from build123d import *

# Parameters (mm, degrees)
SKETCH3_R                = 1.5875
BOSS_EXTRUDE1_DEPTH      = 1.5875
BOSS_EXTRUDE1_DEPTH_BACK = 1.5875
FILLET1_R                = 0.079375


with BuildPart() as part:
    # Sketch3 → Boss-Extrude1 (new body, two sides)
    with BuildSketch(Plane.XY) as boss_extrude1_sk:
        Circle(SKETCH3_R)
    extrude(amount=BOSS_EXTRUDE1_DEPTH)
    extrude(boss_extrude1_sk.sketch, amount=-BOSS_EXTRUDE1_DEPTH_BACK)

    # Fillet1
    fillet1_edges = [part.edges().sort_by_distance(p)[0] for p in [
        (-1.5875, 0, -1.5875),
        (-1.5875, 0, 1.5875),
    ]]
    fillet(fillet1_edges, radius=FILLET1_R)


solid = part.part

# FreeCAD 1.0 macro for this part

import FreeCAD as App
import Part
import Sketcher
Q = App.Units.Quantity


def edges_at(feature, points):
    """Names of the edges that pass closest to the given points."""
    edges = feature.Shape.Edges
    near = lambda p: min(range(len(edges)), key=lambda i: edges[i].distToShape(Part.Vertex(*p))[0])
    return sorted({f"Edge{near(p) + 1}" for p in points})

doc = App.newDocument("Part")
body = doc.addObject("PartDesign::Body", "Body")

sketch1 = doc.addObject("Sketcher::SketchObject", "Sketch")
body.addObject(sketch1)
sketch1.AttachmentSupport = (doc.XY_Plane, [""])
sketch1.MapMode = "FlatFace"
sketch1.addGeometry(Part.Circle(App.Vector(0, 0, 0), App.Vector(0, 0, 1), 1.6), False)
sketch1.addConstraint([
    Sketcher.Constraint("Coincident", 0, 3, -1, 1),
    Sketcher.Constraint("Diameter", 0, Q("0.125 in")),
])
pad1 = doc.addObject("PartDesign::Pad", "Pad")
body.addObject(pad1)
pad1.Profile = sketch1
pad1.Type = "TwoLengths"
pad1.Length = Q("0.0625 in")
pad1.Length2 = Q("0.0625 in")
doc.recompute()

fillet = doc.addObject("PartDesign::Fillet", "Fillet")
body.addObject(fillet)
fillet.Base = (pad1, edges_at(pad1, [(-1.587, 0, -1.587), (-1.587, 0, 1.587)]))
fillet.Radius = 0.079375

doc.recompute()
